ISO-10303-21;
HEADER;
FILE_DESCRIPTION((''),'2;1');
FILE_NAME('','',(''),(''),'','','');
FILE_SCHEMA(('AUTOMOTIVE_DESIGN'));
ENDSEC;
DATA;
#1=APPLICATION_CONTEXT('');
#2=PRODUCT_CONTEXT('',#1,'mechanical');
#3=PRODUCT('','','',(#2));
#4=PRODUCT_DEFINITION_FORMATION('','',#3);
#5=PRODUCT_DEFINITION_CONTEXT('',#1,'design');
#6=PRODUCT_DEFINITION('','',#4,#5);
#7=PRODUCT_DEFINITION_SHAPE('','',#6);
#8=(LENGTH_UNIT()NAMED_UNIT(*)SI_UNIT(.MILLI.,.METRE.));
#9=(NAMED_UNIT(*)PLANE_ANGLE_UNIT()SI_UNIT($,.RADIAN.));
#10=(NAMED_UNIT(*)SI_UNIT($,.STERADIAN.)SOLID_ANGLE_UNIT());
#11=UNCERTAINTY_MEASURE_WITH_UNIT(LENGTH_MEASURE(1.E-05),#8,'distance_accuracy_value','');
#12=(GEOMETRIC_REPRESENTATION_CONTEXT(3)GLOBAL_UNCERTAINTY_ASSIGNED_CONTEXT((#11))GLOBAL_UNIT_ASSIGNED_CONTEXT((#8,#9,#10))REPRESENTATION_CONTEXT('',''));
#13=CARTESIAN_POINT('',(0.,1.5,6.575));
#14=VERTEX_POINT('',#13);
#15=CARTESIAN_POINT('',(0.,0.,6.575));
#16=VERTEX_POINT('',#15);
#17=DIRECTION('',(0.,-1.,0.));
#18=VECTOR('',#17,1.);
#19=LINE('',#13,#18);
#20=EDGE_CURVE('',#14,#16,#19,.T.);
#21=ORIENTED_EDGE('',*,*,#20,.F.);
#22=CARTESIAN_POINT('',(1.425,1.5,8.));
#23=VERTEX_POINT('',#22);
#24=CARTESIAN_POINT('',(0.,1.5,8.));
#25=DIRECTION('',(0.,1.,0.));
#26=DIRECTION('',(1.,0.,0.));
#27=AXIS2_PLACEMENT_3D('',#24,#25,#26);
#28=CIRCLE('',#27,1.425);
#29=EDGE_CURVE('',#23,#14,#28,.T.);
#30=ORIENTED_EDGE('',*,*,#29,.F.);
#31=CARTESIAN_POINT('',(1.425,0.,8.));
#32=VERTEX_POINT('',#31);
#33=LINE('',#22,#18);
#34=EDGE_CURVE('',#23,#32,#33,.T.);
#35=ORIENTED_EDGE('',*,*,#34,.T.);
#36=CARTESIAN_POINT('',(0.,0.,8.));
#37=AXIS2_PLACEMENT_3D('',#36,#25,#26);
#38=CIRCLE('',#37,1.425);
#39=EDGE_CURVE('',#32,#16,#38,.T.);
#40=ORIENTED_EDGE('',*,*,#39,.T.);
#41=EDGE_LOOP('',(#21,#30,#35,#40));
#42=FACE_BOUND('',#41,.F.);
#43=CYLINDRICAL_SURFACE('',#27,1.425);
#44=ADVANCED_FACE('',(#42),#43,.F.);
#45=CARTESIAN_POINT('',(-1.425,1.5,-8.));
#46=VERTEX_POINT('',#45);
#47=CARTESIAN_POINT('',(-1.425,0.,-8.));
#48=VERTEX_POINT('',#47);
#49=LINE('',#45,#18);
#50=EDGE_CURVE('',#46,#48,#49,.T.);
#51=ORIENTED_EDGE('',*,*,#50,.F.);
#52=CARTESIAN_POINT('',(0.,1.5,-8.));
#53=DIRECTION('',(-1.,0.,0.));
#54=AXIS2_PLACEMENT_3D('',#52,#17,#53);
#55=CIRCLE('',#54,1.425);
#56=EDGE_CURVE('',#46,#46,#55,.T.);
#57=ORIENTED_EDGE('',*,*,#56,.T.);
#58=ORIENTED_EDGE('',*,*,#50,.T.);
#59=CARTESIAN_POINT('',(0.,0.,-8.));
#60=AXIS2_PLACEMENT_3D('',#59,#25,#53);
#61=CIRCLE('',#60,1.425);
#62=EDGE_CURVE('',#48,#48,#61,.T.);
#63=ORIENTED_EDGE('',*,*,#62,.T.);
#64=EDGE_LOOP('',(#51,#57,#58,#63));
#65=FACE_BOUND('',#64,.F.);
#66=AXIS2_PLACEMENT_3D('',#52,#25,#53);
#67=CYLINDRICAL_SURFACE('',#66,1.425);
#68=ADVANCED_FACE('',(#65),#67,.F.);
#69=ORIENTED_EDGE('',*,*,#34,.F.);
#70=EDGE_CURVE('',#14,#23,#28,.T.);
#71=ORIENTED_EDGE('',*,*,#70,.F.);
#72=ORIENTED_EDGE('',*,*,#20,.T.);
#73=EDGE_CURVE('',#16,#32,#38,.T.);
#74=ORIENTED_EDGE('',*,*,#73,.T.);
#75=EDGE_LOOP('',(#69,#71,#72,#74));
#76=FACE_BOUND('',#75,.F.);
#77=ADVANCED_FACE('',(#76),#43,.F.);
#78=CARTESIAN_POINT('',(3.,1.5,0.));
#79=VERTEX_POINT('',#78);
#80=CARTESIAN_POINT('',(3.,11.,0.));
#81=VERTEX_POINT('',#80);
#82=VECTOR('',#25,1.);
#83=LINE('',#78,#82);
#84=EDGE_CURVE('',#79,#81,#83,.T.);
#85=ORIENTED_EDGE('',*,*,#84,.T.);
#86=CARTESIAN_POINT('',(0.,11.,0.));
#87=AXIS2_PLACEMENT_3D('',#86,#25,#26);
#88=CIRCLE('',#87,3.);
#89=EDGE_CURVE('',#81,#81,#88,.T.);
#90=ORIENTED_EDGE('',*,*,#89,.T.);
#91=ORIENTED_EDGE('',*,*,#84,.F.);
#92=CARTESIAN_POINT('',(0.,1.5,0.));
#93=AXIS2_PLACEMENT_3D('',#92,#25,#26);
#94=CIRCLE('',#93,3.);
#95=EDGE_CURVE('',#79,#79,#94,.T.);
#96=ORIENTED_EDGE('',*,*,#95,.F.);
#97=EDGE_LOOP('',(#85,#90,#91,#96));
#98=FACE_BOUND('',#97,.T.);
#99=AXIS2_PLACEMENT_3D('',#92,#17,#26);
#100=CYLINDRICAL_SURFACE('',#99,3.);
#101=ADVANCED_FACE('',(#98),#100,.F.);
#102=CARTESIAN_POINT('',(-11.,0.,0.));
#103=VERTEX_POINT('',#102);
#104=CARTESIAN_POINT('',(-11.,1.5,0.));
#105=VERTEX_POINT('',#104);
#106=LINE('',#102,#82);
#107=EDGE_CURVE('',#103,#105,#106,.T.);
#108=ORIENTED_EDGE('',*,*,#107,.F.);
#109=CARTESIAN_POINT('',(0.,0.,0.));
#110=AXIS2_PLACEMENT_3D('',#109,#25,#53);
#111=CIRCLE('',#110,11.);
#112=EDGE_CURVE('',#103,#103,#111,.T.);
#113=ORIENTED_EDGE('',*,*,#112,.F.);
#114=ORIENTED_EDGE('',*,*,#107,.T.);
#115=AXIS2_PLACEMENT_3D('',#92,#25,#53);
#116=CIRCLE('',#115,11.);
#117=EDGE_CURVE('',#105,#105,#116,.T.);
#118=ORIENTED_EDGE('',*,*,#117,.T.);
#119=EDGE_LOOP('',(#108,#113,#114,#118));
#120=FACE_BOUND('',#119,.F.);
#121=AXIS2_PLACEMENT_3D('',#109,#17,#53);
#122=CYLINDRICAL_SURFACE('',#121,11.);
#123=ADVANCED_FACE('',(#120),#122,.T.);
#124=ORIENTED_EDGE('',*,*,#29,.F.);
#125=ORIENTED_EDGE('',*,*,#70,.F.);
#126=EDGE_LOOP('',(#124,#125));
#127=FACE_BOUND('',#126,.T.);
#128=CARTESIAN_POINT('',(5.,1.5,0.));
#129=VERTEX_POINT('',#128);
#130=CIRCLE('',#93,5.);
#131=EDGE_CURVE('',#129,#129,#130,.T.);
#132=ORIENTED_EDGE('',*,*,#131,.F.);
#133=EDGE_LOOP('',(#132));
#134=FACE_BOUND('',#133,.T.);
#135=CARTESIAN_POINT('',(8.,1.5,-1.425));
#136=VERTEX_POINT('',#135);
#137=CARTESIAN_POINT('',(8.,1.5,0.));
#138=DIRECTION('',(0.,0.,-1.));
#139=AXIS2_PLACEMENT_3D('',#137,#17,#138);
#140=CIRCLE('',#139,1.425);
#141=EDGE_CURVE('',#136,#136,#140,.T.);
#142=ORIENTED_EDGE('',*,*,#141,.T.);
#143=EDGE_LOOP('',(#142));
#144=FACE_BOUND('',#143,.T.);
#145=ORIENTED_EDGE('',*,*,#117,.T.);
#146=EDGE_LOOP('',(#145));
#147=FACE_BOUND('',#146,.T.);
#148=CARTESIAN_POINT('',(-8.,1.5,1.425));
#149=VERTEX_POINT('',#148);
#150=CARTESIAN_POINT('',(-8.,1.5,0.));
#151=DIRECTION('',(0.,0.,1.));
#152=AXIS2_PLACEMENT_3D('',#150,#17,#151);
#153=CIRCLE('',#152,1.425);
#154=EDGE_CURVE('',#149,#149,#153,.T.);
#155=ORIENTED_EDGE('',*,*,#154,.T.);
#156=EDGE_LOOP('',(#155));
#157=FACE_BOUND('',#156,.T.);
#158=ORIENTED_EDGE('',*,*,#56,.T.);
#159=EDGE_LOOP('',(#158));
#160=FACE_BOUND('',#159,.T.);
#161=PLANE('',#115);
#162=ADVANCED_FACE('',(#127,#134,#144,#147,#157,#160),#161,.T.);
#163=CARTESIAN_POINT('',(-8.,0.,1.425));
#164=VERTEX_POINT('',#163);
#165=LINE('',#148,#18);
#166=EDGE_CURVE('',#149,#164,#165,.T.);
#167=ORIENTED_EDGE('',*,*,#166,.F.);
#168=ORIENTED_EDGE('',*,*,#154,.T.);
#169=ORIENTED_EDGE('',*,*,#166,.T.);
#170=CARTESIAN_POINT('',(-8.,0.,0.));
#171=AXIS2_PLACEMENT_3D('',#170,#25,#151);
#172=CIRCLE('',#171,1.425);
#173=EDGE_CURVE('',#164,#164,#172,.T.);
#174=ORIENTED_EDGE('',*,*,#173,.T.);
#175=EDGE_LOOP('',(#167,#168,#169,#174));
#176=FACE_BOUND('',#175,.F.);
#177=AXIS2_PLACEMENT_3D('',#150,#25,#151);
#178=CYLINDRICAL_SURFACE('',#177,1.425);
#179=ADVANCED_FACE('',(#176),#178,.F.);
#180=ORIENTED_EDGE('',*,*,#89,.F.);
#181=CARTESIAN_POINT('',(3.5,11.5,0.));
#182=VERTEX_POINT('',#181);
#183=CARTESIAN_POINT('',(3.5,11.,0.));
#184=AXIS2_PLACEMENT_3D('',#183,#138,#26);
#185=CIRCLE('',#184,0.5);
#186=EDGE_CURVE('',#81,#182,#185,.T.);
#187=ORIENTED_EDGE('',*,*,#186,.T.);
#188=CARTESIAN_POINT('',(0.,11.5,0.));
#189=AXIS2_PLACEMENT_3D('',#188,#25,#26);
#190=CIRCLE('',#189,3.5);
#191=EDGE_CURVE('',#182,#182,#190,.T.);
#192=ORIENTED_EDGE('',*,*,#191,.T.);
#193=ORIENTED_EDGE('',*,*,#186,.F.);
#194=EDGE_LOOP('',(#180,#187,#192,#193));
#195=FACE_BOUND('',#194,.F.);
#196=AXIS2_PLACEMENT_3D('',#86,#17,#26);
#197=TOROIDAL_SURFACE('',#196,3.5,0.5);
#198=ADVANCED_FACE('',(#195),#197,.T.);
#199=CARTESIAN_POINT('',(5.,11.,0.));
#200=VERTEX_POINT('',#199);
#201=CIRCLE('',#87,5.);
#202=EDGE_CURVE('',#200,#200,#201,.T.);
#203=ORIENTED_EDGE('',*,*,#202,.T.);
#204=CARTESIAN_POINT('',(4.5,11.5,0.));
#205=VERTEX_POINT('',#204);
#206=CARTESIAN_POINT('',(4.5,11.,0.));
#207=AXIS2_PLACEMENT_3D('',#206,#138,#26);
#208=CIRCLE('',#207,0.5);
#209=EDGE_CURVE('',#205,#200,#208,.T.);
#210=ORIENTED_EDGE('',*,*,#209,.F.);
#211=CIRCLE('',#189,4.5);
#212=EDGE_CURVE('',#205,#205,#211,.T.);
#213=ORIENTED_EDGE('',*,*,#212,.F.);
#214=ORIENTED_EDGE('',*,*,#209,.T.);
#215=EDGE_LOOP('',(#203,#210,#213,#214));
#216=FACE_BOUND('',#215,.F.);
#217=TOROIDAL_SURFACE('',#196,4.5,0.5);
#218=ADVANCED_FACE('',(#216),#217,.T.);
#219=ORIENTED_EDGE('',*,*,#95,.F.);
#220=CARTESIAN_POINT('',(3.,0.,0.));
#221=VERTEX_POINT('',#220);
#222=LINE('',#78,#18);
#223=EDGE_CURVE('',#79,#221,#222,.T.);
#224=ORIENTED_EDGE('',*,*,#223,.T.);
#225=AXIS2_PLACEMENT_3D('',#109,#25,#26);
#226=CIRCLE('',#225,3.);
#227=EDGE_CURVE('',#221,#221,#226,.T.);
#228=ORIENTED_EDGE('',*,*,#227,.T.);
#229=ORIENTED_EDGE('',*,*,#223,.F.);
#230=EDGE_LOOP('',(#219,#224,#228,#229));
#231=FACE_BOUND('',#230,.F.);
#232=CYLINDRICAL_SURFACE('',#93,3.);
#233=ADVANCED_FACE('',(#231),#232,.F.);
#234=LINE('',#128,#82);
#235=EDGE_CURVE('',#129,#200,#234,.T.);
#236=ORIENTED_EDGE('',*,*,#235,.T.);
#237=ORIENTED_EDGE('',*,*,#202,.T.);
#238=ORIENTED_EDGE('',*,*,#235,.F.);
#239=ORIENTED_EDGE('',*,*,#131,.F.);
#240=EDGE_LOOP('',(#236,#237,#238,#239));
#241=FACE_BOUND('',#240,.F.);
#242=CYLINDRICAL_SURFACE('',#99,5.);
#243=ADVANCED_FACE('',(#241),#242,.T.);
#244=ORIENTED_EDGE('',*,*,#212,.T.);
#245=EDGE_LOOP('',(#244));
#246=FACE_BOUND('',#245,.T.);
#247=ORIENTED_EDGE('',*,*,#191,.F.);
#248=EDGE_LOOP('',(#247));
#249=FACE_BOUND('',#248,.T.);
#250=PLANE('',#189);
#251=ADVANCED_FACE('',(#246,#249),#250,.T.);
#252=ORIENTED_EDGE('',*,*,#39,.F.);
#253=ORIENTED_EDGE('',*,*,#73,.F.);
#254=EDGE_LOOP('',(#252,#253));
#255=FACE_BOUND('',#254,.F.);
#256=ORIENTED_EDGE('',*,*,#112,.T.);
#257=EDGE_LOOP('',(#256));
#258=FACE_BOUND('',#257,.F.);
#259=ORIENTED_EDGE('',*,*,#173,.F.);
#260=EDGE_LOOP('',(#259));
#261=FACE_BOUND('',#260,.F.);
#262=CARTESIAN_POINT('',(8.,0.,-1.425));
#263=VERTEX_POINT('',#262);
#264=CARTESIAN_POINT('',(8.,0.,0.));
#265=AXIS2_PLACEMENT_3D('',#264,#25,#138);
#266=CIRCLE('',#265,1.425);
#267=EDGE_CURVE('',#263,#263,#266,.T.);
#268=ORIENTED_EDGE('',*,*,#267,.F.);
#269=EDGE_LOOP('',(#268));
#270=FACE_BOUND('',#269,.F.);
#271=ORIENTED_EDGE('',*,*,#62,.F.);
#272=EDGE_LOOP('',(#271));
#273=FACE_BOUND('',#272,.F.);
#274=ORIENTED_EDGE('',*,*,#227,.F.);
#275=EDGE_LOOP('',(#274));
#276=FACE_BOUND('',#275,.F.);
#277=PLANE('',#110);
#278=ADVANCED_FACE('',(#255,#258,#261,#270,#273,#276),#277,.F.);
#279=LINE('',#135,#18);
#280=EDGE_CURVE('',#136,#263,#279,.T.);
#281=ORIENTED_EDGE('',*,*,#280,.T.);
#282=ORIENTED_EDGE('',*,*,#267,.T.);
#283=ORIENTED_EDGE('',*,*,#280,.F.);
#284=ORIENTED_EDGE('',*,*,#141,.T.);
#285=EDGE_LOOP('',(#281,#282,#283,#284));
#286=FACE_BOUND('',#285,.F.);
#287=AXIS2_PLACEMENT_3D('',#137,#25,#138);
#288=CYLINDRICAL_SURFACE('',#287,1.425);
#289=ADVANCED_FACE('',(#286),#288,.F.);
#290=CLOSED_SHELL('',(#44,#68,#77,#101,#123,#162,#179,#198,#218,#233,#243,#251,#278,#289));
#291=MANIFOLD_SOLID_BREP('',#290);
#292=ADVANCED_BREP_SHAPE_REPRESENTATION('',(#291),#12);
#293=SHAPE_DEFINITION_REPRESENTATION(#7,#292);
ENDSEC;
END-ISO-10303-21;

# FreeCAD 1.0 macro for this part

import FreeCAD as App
import Part
import Sketcher
Q = App.Units.Quantity


def edges_at(feature, points):
    """Names of the edges that pass closest to the given points."""
    edges = feature.Shape.Edges
    near = lambda p: min(range(len(edges)), key=lambda i: edges[i].distToShape(Part.Vertex(*p))[0])
    return sorted({f"Edge{near(p) + 1}" for p in points})

doc = App.newDocument("Part")
body = doc.addObject("PartDesign::Body", "Body")

# Sketch on XZ plane
sketch1 = doc.addObject("Sketcher::SketchObject", "Sketch")
body.addObject(sketch1)
sketch1.AttachmentSupport = (doc.XZ_Plane, [""])
sketch1.MapMode = "FlatFace"
sketch1.addGeometry(Part.Circle(App.Vector(0, 0, 0), App.Vector(0, 0, 1), 11), False)
sketch1.addConstraint([
    Sketcher.Constraint("Coincident", 0, 3, -1, 1),
    Sketcher.Constraint("Diameter", 0, Q("22 mm")),
])
pad1 = doc.addObject("PartDesign::Pad", "Pad")
body.addObject(pad1)
pad1.Profile = sketch1
pad1.Length = 1.5
pad1.Reversed = True

# Sketch on XZ plane
sketch2 = doc.addObject("Sketcher::SketchObject", "Sketch001")
body.addObject(sketch2)
sketch2.AttachmentSupport = (doc.XZ_Plane, [""])
sketch2.MapMode = "FlatFace"
sketch2.AttachmentOffset = App.Placement(App.Vector(0, 0, -1.5), App.Rotation())
sketch2.addGeometry([
    Part.Circle(App.Vector(0, 0, 0), App.Vector(0, 0, 1), 5),
    Part.Circle(App.Vector(0, 0, 0), App.Vector(0, 0, 1), 3),
], False)
sketch2.addConstraint([
    Sketcher.Constraint("Coincident", 0, 3, -1, 1),
    Sketcher.Constraint("Coincident", 1, 3, -1, 1),
    Sketcher.Constraint("Diameter", 0, Q("10 mm")),
    Sketcher.Constraint("Diameter", 1, Q("6 mm")),
])
pad2 = doc.addObject("PartDesign::Pad", "Pad001")
body.addObject(pad2)
pad2.Profile = sketch2
pad2.Length = 10
pad2.Reversed = True

# Sketch on XZ plane
sketch3 = doc.addObject("Sketcher::SketchObject", "Sketch002")
body.addObject(sketch3)
sketch3.AttachmentSupport = (doc.XZ_Plane, [""])
sketch3.MapMode = "FlatFace"
sketch3.AttachmentOffset = App.Placement(App.Vector(0, 0, -1.5), App.Rotation())
sketch3.addGeometry(Part.Circle(App.Vector(0, 0, 0), App.Vector(0, 0, 1), 3), False)
sketch3.addConstraint([
    Sketcher.Constraint("Coincident", 0, 3, -1, 1),
    Sketcher.Constraint("Diameter", 0, Q("6 mm")),
])
pocket1 = doc.addObject("PartDesign::Pocket", "Pocket")
body.addObject(pocket1)
pocket1.Profile = sketch3
pocket1.Length = 1.5
pocket1.Reversed = True

# Sketch on XZ plane
sketch4 = doc.addObject("Sketcher::SketchObject", "Sketch003")
body.addObject(sketch4)
sketch4.AttachmentSupport = (doc.XZ_Plane, [""])
sketch4.MapMode = "FlatFace"
sketch4.AttachmentOffset = App.Placement(App.Vector(0, 0, -1.5), App.Rotation())
sketch4.addGeometry(Part.Circle(App.Vector(0, 8, 0), App.Vector(0, 0, 1), 1.4), False)
sketch4.addConstraint([
    Sketcher.Constraint("PointOnObject", 0, 3, -2),
    Sketcher.Constraint("Diameter", 0, Q("2.85 mm")),
    Sketcher.Constraint("DistanceY", -1, 1, 0, 3, Q("8 mm")),
])
pocket2 = doc.addObject("PartDesign::Pocket", "Pocket001")
body.addObject(pocket2)
pocket2.Profile = sketch4
pocket2.Length = 1.5
pocket2.Reversed = True
doc.recompute()

polarpattern = doc.addObject("PartDesign::PolarPattern", "PolarPattern")
body.addObject(polarpattern)
polarpattern.Originals = [pocket2]
polarpattern.Axis = (doc.Y_Axis, [""])
polarpattern.Angle = 360
polarpattern.Occurrences = 4
body.Tip = polarpattern
doc.recompute()

fillet = doc.addObject("PartDesign::Fillet", "Fillet")
body.addObject(fillet)
fillet.Base = (polarpattern, edges_at(polarpattern, [(-3, 11.5, 0)]))
fillet.Radius = 0.5
doc.recompute()

fillet2 = doc.addObject("PartDesign::Fillet", "Fillet001")
body.addObject(fillet2)
fillet2.Base = (fillet, edges_at(fillet, [(-5, 11.5, 0)]))
fillet2.Radius = 0.5

doc.recompute()
